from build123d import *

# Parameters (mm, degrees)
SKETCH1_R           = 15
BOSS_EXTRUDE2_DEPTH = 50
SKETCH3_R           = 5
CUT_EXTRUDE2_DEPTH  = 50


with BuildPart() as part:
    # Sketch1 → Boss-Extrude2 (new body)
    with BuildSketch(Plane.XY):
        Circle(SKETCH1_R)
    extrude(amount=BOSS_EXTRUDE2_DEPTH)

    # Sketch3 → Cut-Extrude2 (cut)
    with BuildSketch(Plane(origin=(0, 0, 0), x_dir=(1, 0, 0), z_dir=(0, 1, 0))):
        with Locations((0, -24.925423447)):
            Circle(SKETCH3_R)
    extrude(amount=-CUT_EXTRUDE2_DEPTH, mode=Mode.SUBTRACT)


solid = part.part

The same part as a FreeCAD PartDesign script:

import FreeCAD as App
import Part
import Sketcher
Q = App.Units.Quantity

doc = App.newDocument("Part")
params = doc.addObject("Spreadsheet::Sheet", "Params")
for row, (alias, value) in enumerate([
    ("sketch1_diameter", "30 mm"),
    ("pad1_length", "50 mm"),
    ("sketch2_diameter", "10 mm"),
    ("pocket1_length", "50 mm"),
], start=1):
    params.set(f"A{row}", alias)
    params.set(f"B{row}", "=" + value)
    params.setAlias(f"B{row}", alias)

body = doc.addObject("PartDesign::Body", "Body")

# Sketch on XY plane
sketch1 = body.newObject("Sketcher::SketchObject", "Sketch")
sketch1.AttachmentSupport = (doc.getObject("XY_Plane"), [""])
sketch1.MapMode = "FlatFace"
sketch1.addGeometry(Part.Circle(App.Vector(0, 0, 0), App.Vector(0, 0, 1), 15), False)
sketch1.addConstraint(Sketcher.Constraint("Coincident", 0, 3, -1, 1))
sketch1.addConstraint(Sketcher.Constraint("Diameter", 0, Q("30 mm")))
sketch1.setExpression("Constraints[1]", "Params.sketch1_diameter")
pad1 = body.newObject("PartDesign::Pad", "Pad")
pad1.Profile = sketch1
pad1.setExpression("Length", "Params.pad1_length")

# Sketch on XZ plane
sketch2 = body.newObject("Sketcher::SketchObject", "Sketch001")
sketch2.AttachmentSupport = (doc.getObject("XZ_Plane"), [""])
sketch2.MapMode = "FlatFace"
sketch2.addGeometry(Part.Circle(App.Vector(0, 25, 0), App.Vector(0, 0, 1), 5), False)
sketch2.addConstraint(Sketcher.Constraint("PointOnObject", 0, 3, -2))
sketch2.addConstraint(Sketcher.Constraint("Diameter", 0, Q("10 mm")))
sketch2.addConstraint(Sketcher.Constraint("DistanceY", -1, 1, 0, 3, Q("24.925423 mm")))
sketch2.setExpression("Constraints[1]", "Params.sketch2_diameter")
pocket1 = body.newObject("PartDesign::Pocket", "Pocket")
pocket1.Profile = sketch2
pocket1.setExpression("Length", "Params.pocket1_length")
pocket1.Reversed = True

doc.recompute()
